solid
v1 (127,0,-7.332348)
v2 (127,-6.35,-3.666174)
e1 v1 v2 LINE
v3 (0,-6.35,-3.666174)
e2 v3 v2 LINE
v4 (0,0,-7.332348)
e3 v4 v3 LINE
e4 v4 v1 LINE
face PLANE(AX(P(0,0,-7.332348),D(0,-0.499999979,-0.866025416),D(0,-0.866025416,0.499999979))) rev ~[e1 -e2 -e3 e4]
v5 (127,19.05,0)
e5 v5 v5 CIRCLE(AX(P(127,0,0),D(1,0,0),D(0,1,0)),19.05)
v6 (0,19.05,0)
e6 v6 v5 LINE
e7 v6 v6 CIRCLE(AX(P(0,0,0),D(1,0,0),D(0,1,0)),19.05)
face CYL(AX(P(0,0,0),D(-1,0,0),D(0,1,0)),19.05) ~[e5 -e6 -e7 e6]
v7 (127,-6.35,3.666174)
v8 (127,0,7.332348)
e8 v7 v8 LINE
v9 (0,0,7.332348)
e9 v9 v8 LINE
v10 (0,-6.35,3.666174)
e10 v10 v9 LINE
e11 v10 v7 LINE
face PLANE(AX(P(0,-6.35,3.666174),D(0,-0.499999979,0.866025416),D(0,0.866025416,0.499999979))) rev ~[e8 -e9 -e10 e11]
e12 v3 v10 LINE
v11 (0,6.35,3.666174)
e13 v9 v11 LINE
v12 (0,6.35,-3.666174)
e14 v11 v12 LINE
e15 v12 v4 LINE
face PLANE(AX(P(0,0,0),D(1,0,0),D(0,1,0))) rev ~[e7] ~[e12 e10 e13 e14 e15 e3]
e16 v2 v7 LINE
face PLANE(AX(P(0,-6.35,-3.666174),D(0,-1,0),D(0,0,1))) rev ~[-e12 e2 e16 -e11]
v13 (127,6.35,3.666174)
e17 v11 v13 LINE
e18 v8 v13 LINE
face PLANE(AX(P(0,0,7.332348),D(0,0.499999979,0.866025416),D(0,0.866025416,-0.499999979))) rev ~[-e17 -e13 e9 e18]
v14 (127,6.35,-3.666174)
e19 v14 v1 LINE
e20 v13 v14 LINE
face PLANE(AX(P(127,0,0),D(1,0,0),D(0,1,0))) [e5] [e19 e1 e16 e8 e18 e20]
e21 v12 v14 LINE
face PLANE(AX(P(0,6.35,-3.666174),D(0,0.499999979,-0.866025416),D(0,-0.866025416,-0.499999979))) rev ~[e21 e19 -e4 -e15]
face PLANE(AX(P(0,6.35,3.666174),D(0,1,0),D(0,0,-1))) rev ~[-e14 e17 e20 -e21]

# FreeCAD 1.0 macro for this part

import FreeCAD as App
import Part
import Sketcher
Q = App.Units.Quantity

doc = App.newDocument("Part")
body = doc.addObject("PartDesign::Body", "Body")

# Sketch on YZ plane
sketch1 = doc.addObject("Sketcher::SketchObject", "Sketch")
body.addObject(sketch1)
sketch1.AttachmentSupport = (doc.YZ_Plane, [""])
sketch1.MapMode = "FlatFace"
sketch1.addGeometry(Part.Circle(App.Vector(0, 0, 0), App.Vector(0, 0, 1), 19.05), False)
sketch1.addGeometry(Part.LineSegment(App.Vector(-6.35, -3.666174, 0), App.Vector(-6.35, 3.666174, 0)), False)
sketch1.addGeometry(Part.LineSegment(App.Vector(-6.35, 3.666174, 0), App.Vector(0, 7.332348, 0)), False)
sketch1.addGeometry(Part.LineSegment(App.Vector(0, 7.332348, 0), App.Vector(6.35, 3.666174, 0)), False)
sketch1.addGeometry(Part.LineSegment(App.Vector(6.35, 3.666174, 0), App.Vector(6.35, -3.666174, 0)), False)
sketch1.addGeometry(Part.LineSegment(App.Vector(6.35, -3.666174, 0), App.Vector(0, -7.332348, 0)), False)
sketch1.addGeometry(Part.LineSegment(App.Vector(0, -7.332348, 0), App.Vector(-6.35, -3.666174, 0)), False)
sketch1.addConstraint(Sketcher.Constraint("Coincident", 1, 2, 2, 1))
sketch1.addConstraint(Sketcher.Constraint("Coincident", 2, 2, 3, 1))
sketch1.addConstraint(Sketcher.Constraint("Coincident", 3, 2, 4, 1))
sketch1.addConstraint(Sketcher.Constraint("Coincident", 4, 2, 5, 1))
sketch1.addConstraint(Sketcher.Constraint("Coincident", 5, 2, 6, 1))
sketch1.addConstraint(Sketcher.Constraint("Coincident", 6, 2, 1, 1))
sketch1.addConstraint(Sketcher.Constraint("Vertical", 1))
sketch1.addConstraint(Sketcher.Constraint("Vertical", 4))
sketch1.addConstraint(Sketcher.Constraint("Coincident", 0, 3, -1, 1))
sketch1.addConstraint(Sketcher.Constraint("Symmetric", 1, 2, 4, 2, -1, 1))
sketch1.addConstraint(Sketcher.Constraint("Symmetric", 2, 2, 5, 2, -1, 1))
sketch1.addConstraint(Sketcher.Constraint("PointOnObject", 2, 2, -2))
sketch1.addConstraint(Sketcher.Constraint("Parallel", 3, 6))
sketch1.addConstraint(Sketcher.Constraint("Horizontal", 1, 2, 3, 2))
sketch1.addConstraint(Sketcher.Constraint("Diameter", 0, Q("1.5 in")))
sketch1.addConstraint(Sketcher.Constraint("Angle", 2, Q("29.999999 deg")))
sketch1.addConstraint(Sketcher.Constraint("DistanceX", 1, 2, 3, 2, Q("0.5 in")))
sketch1.addConstraint(Sketcher.Constraint("DistanceY", 1, 1, 1, 2, Q("7.332348 mm")))
pad1 = doc.addObject("PartDesign::Pad", "Pad")
body.addObject(pad1)
pad1.Profile = sketch1
pad1.Length = Q("5 in")

doc.recompute()
